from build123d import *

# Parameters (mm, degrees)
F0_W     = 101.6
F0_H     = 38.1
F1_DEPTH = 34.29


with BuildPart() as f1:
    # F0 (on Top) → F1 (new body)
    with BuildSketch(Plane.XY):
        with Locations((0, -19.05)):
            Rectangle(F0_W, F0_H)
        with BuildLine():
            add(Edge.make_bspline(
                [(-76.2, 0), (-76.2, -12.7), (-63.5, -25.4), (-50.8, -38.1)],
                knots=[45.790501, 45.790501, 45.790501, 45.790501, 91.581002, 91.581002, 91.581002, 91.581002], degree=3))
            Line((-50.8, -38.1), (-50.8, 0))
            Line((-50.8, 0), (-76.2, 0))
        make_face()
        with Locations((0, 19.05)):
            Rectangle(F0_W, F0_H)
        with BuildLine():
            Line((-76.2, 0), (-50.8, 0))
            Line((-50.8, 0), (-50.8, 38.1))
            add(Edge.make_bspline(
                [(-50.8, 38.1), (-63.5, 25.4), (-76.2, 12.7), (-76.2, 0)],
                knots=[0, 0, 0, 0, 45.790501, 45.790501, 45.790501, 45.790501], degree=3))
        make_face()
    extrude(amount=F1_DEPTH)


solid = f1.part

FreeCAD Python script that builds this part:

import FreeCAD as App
import Part
import Sketcher
Q = App.Units.Quantity

doc = App.newDocument("Part")
params = doc.addObject("Spreadsheet::Sheet", "Params")
for row, (alias, value) in enumerate([
    ("sketch1_width", "4 in"),
    ("pad1_length", "1.35 in"),
], start=1):
    params.set(f"A{row}", alias)
    params.set(f"B{row}", "=" + value)
    params.setAlias(f"B{row}", alias)

body = doc.addObject("PartDesign::Body", "Body")

# Sketch on XY plane
sketch1 = body.newObject("Sketcher::SketchObject", "Sketch")
sketch1.AttachmentSupport = (doc.getObject("XY_Plane"), [""])
sketch1.MapMode = "FlatFace"
sketch1.addGeometry([
    Part.LineSegment(App.Vector(-50.8, -38.1, 0), App.Vector(50.8, -38.1, 0)),
    Part.LineSegment(App.Vector(50.8, -38.1, 0), App.Vector(50.8, 38.1, 0)),
    Part.LineSegment(App.Vector(50.8, 38.1, 0), App.Vector(-50.8, 38.1, 0)),
    Part.BSplineCurve([App.Vector(-50.8, 38.1, 0), App.Vector(-63.5, 25.4, 0), App.Vector(-88.9, 0, 0), App.Vector(-63.5, -25.4, 0), App.Vector(-50.8, -38.1, 0)], [4, 1, 4], [0, 45.790501, 91.581002], False, 3, [1, 1, 1, 1, 1], False),
], False)
sketch1.addConstraint([
    Sketcher.Constraint("Block", 3),
    Sketcher.Constraint("Coincident", 0, 2, 1, 1),
    Sketcher.Constraint("Coincident", 1, 2, 2, 1),
    Sketcher.Constraint("Coincident", 2, 2, 3, 1),
    Sketcher.Constraint("Coincident", 3, 2, 0, 1),
    Sketcher.Constraint("Horizontal", 0),
    Sketcher.Constraint("Vertical", 1),
    Sketcher.Constraint("Horizontal", 2),
    Sketcher.Constraint("DistanceX", 0, 1, 0, 2, Q("4 in")),
])
sketch1.setExpression("Constraints[8]", "Params.sketch1_width")
pad1 = body.newObject("PartDesign::Pad", "Pad")
pad1.Profile = sketch1
pad1.setExpression("Length", "Params.pad1_length")

doc.recompute()
